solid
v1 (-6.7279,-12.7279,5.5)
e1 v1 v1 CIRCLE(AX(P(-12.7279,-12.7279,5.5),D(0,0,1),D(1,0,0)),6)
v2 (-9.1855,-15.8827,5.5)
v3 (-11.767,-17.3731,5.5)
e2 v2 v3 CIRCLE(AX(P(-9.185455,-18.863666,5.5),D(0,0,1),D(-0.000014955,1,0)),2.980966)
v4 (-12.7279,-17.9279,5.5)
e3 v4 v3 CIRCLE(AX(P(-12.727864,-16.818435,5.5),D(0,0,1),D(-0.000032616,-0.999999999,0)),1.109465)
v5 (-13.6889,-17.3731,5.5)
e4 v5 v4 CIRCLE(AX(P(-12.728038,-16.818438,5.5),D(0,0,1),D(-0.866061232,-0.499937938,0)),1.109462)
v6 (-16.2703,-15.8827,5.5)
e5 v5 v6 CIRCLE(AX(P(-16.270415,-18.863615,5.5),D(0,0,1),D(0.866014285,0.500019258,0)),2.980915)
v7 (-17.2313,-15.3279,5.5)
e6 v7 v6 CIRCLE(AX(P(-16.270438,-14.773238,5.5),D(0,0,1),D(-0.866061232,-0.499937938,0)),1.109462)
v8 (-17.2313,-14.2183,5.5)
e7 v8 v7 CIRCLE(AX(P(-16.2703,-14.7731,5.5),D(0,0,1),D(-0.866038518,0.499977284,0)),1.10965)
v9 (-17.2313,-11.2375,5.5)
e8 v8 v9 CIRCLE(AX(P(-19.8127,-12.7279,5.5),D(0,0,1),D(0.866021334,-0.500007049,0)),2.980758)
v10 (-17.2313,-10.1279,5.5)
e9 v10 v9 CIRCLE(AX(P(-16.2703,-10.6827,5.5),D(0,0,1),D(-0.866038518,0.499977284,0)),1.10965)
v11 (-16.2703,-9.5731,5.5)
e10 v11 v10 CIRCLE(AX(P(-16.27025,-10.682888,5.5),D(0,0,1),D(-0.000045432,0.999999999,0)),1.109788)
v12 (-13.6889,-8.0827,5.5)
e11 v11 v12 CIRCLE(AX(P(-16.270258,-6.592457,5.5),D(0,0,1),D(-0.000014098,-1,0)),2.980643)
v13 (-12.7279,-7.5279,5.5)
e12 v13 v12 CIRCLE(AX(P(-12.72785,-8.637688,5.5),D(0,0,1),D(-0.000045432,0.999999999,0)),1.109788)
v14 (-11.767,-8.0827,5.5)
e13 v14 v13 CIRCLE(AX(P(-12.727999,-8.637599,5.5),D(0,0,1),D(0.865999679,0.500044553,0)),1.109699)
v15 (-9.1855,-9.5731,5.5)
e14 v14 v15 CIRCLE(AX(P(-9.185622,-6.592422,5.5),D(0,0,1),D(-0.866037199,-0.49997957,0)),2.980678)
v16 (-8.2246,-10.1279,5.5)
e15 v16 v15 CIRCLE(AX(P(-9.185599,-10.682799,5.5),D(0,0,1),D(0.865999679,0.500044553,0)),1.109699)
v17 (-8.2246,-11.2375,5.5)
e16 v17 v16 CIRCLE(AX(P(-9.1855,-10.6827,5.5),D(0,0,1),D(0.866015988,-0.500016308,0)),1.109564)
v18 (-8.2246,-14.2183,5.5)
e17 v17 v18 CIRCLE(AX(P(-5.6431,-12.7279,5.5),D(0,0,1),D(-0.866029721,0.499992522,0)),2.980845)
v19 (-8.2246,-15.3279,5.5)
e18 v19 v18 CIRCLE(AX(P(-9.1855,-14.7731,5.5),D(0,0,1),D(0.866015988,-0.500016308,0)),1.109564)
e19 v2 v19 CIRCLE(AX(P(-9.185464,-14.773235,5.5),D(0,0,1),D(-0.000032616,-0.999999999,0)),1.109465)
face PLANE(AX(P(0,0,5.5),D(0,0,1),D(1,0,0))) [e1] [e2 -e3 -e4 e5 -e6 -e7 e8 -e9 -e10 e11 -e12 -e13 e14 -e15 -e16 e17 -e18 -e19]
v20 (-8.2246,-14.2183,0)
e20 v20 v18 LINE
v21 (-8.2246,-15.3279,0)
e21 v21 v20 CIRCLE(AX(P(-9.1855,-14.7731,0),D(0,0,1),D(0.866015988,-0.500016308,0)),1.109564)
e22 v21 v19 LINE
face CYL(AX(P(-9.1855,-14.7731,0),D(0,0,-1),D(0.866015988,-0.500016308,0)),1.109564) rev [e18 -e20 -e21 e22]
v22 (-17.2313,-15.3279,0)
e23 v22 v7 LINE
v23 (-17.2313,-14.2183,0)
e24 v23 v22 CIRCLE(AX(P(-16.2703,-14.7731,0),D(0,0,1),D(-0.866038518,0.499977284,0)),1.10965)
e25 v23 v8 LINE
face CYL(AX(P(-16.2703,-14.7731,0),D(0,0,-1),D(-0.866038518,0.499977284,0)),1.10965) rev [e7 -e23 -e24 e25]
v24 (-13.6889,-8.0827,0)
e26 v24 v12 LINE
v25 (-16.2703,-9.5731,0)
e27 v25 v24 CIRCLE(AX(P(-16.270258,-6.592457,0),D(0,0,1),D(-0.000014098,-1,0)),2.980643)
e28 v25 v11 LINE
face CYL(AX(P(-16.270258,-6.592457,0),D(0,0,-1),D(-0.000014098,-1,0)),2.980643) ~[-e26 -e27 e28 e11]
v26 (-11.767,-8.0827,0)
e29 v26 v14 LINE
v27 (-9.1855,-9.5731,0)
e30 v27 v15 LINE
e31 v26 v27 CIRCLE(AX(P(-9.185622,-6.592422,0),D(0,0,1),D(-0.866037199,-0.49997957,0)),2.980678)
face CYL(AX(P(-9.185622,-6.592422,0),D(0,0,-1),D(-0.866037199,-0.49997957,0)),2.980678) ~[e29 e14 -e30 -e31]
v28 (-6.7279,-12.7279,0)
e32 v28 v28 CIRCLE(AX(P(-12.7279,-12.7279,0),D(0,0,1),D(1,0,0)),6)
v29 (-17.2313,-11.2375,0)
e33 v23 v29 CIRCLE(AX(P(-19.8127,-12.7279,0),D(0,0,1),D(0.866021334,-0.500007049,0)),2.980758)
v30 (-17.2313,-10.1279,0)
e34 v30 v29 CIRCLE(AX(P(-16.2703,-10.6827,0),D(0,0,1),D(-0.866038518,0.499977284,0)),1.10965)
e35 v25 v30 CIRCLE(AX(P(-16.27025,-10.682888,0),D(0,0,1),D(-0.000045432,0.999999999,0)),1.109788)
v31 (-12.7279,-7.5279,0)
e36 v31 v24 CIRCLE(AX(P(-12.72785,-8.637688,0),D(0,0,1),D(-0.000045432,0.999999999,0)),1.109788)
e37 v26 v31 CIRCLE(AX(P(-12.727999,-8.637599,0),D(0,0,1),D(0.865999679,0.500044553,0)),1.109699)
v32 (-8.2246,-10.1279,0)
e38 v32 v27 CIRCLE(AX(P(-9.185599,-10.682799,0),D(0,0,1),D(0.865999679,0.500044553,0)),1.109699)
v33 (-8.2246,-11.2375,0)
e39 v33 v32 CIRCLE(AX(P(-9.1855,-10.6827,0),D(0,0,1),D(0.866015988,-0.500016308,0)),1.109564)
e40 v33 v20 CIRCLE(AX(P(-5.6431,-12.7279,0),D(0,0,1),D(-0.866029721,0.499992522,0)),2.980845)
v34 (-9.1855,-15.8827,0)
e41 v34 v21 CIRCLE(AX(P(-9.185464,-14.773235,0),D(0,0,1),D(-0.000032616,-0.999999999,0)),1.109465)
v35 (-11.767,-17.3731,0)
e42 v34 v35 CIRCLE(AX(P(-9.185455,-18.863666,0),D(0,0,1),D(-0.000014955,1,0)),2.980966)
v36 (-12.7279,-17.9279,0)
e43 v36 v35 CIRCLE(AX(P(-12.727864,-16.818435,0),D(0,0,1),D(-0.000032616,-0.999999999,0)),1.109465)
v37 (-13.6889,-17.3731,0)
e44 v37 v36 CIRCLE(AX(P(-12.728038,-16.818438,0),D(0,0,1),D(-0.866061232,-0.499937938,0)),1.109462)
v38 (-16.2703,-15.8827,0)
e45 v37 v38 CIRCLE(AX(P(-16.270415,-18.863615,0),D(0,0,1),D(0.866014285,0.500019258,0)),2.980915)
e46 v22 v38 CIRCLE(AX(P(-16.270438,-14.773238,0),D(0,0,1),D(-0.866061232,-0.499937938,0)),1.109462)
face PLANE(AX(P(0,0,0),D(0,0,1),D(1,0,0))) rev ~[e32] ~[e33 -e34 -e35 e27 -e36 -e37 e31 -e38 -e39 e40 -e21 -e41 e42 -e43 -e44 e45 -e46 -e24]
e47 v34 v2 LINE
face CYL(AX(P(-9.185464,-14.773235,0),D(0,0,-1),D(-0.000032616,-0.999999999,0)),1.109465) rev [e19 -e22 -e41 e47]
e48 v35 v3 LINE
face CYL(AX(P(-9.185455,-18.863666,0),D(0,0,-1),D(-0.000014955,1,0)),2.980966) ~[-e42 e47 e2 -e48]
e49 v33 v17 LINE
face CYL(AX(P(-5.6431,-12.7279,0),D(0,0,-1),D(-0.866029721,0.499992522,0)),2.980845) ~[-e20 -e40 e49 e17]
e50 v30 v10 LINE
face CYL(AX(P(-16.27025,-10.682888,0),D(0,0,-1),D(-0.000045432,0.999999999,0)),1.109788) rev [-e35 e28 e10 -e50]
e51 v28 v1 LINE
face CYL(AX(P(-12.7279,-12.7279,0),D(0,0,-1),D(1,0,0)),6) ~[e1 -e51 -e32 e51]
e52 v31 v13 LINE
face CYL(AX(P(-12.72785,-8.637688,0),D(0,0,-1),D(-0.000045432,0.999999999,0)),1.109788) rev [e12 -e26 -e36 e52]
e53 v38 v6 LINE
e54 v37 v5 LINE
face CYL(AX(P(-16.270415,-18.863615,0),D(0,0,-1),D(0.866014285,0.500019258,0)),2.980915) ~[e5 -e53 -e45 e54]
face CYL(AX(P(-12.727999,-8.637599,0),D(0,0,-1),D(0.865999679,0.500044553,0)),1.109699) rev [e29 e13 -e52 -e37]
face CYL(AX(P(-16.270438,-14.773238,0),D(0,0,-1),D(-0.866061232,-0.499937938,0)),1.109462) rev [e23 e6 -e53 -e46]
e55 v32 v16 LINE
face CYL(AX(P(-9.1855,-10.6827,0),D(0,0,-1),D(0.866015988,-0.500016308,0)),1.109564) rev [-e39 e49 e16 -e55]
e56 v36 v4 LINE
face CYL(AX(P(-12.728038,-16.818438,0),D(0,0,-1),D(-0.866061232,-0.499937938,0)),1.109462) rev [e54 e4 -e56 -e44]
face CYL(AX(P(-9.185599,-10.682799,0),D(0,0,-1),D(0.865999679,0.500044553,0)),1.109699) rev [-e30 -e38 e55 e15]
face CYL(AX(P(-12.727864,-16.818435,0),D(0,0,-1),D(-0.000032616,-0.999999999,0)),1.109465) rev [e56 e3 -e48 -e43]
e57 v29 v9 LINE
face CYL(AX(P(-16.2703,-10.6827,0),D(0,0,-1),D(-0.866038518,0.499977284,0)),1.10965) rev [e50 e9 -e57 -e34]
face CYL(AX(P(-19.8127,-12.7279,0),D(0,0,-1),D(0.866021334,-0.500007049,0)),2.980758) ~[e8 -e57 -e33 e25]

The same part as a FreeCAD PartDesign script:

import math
import FreeCAD as App
import Part
import Sketcher

V = App.Vector

doc = App.newDocument("Part")
body = doc.addObject("PartDesign::Body", "Body")

sketch1 = body.newObject("Sketcher::SketchObject", "Sketch")
sketch1.AttachmentSupport = (doc.getObject("XY_Plane"), [""])
sketch1.MapMode = "FlatFace"
sketch1.addGeometry(Part.Circle(V(-12.7, -12.7, 0), V(0, 0, 1), 6), False)
sketch1.addGeometry(Part.ArcOfCircle(Part.Circle(V(-12.7, -8.6, 0), V(0, 0, 1), 1.1), math.radians(30), math.radians(90)), False)
sketch1.addGeometry(Part.ArcOfCircle(Part.Circle(V(-9.2, -6.6, 0), V(0, 0, 1), 3), math.radians(-150), math.radians(-90)), False)
sketch1.addGeometry(Part.ArcOfCircle(Part.Circle(V(-9.2, -10.7, 0), V(0, 0, 1), 1.1), math.radians(30), math.radians(90)), False)
sketch1.addGeometry(Part.ArcOfCircle(Part.Circle(V(-9.2, -10.7, 0), V(0, 0, 1), 1.1), math.radians(-30), math.radians(30)), False)
sketch1.addGeometry(Part.ArcOfCircle(Part.Circle(V(-5.6, -12.7, 0), V(0, 0, 1), 3), math.radians(150), math.radians(210)), False)
sketch1.addGeometry(Part.ArcOfCircle(Part.Circle(V(-9.2, -14.8, 0), V(0, 0, 1), 1.1), math.radians(-30), math.radians(30)), False)
sketch1.addGeometry(Part.ArcOfCircle(Part.Circle(V(-9.2, -14.8, 0), V(0, 0, 1), 1.1), math.radians(-90), math.radians(-30)), False)
sketch1.addGeometry(Part.ArcOfCircle(Part.Circle(V(-9.2, -18.9, 0), V(0, 0, 1), 3), math.radians(90), math.radians(150)), False)
sketch1.addGeometry(Part.ArcOfCircle(Part.Circle(V(-12.7, -16.8, 0), V(0, 0, 1), 1.1), math.radians(-90), math.radians(-30)), False)
sketch1.addGeometry(Part.ArcOfCircle(Part.Circle(V(-12.7, -16.8, 0), V(0, 0, 1), 1.1), math.radians(-150), math.radians(-90)), False)
sketch1.addGeometry(Part.ArcOfCircle(Part.Circle(V(-16.3, -18.9, 0), V(0, 0, 1), 3), math.radians(30), math.radians(90)), False)
sketch1.addGeometry(Part.ArcOfCircle(Part.Circle(V(-16.3, -14.8, 0), V(0, 0, 1), 1.1), math.radians(-150), math.radians(-90)), False)
sketch1.addGeometry(Part.ArcOfCircle(Part.Circle(V(-16.3, -14.8, 0), V(0, 0, 1), 1.1), math.radians(150), math.radians(210)), False)
sketch1.addGeometry(Part.ArcOfCircle(Part.Circle(V(-19.8, -12.7, 0), V(0, 0, 1), 3), math.radians(-30), math.radians(30)), False)
sketch1.addGeometry(Part.ArcOfCircle(Part.Circle(V(-16.3, -10.7, 0), V(0, 0, 1), 1.1), math.radians(150), math.radians(210)), False)
sketch1.addGeometry(Part.ArcOfCircle(Part.Circle(V(-16.3, -10.7, 0), V(0, 0, 1), 1.1), math.radians(90), math.radians(150)), False)
sketch1.addGeometry(Part.ArcOfCircle(Part.Circle(V(-16.3, -6.6, 0), V(0, 0, 1), 3), math.radians(-90), math.radians(-30)), False)
sketch1.addGeometry(Part.ArcOfCircle(Part.Circle(V(-12.7, -8.6, 0), V(0, 0, 1), 1.1), math.radians(90), math.radians(150)), False)
sketch1.addConstraint(Sketcher.Constraint("Tangent", 1, 1, 2, 1))
sketch1.addConstraint(Sketcher.Constraint("Tangent", 2, 2, 3, 2))
sketch1.addConstraint(Sketcher.Constraint("Tangent", 3, 1, 4, 2))
sketch1.addConstraint(Sketcher.Constraint("Tangent", 4, 1, 5, 1))
sketch1.addConstraint(Sketcher.Constraint("Tangent", 5, 2, 6, 2))
sketch1.addConstraint(Sketcher.Constraint("Tangent", 6, 1, 7, 2))
sketch1.addConstraint(Sketcher.Constraint("Tangent", 7, 1, 8, 1))
sketch1.addConstraint(Sketcher.Constraint("Tangent", 8, 2, 9, 2))
sketch1.addConstraint(Sketcher.Constraint("Tangent", 9, 1, 10, 2))
sketch1.addConstraint(Sketcher.Constraint("Tangent", 10, 1, 11, 1))
sketch1.addConstraint(Sketcher.Constraint("Tangent", 11, 2, 12, 2))
sketch1.addConstraint(Sketcher.Constraint("Tangent", 12, 1, 13, 2))
sketch1.addConstraint(Sketcher.Constraint("Tangent", 13, 1, 14, 1))
sketch1.addConstraint(Sketcher.Constraint("Tangent", 14, 2, 15, 2))
sketch1.addConstraint(Sketcher.Constraint("Tangent", 15, 1, 16, 2))
sketch1.addConstraint(Sketcher.Constraint("Tangent", 16, 1, 17, 1))
sketch1.addConstraint(Sketcher.Constraint("Tangent", 17, 2, 18, 2))
sketch1.addConstraint(Sketcher.Constraint("Tangent", 18, 1, 1, 2))
sketch1.addConstraint(Sketcher.Constraint("Equal", 1, 3))
sketch1.addConstraint(Sketcher.Constraint("Equal", 3, 4))
sketch1.addConstraint(Sketcher.Constraint("Equal", 2, 5))
sketch1.addConstraint(Sketcher.Constraint("Equal", 4, 6))
sketch1.addConstraint(Sketcher.Constraint("Equal", 6, 7))
sketch1.addConstraint(Sketcher.Constraint("Equal", 5, 8))
sketch1.addConstraint(Sketcher.Constraint("Equal", 7, 9))
sketch1.addConstraint(Sketcher.Constraint("Equal", 9, 10))
sketch1.addConstraint(Sketcher.Constraint("Equal", 8, 11))
sketch1.addConstraint(Sketcher.Constraint("Equal", 10, 12))
sketch1.addConstraint(Sketcher.Constraint("Equal", 12, 13))
sketch1.addConstraint(Sketcher.Constraint("Equal", 11, 14))
sketch1.addConstraint(Sketcher.Constraint("Equal", 13, 15))
sketch1.addConstraint(Sketcher.Constraint("Equal", 15, 16))
sketch1.addConstraint(Sketcher.Constraint("Equal", 14, 17))
sketch1.addConstraint(Sketcher.Constraint("Equal", 16, 18))
sketch1.addConstraint(Sketcher.Constraint("Horizontal", 0, 3, 5, 3))
sketch1.addConstraint(Sketcher.Constraint("Horizontal", 8, 3, 11, 3))
sketch1.addConstraint(Sketcher.Constraint("Horizontal", 5, 3, 14, 3))
sketch1.addConstraint(Sketcher.Constraint("Horizontal", 4, 3, 15, 3))
sketch1.addConstraint(Sketcher.Constraint("Horizontal", 6, 1, 12, 1))
sketch1.addConstraint(Sketcher.Constraint("Horizontal", 3, 1, 15, 1))
sketch1.addConstraint(Sketcher.Constraint("Vertical", 0, 3, 1, 3))
sketch1.addConstraint(Sketcher.Constraint("Vertical", 2, 3, 3, 3))
sketch1.addConstraint(Sketcher.Constraint("Vertical", 4, 3, 6, 3))
sketch1.addConstraint(Sketcher.Constraint("Vertical", 7, 3, 8, 3))
sketch1.addConstraint(Sketcher.Constraint("Vertical", 1, 3, 9, 3))
sketch1.addConstraint(Sketcher.Constraint("Vertical", 11, 3, 12, 3))
sketch1.addConstraint(Sketcher.Constraint("Vertical", 3, 1, 4, 1))
sketch1.addConstraint(Sketcher.Constraint("Vertical", 5, 2, 6, 1))
sketch1.addConstraint(Sketcher.Constraint("Vertical", 18, 3, 9, 1))
sketch1.addConstraint(Sketcher.Constraint("Vertical", 9, 1, 18, 1))
sketch1.addConstraint(Sketcher.Constraint("Diameter", 0, 12.0))
sketch1.addConstraint(Sketcher.Constraint("Radius", 1, 1.1096))
sketch1.addConstraint(Sketcher.Constraint("Radius", 2, 2.9808))
sketch1.addConstraint(Sketcher.Constraint("DistanceY", 3, 3, 1, 1, 2.6))
sketch1.addConstraint(Sketcher.Constraint("DistanceY", 5, 3, 3, 1, 2.6))
sketch1.addConstraint(Sketcher.Constraint("DistanceX", 0, 3, -1, 1, 12.728))
sketch1.addConstraint(Sketcher.Constraint("DistanceY", 0, 3, -1, 1, 12.728))
pad1 = body.newObject("PartDesign::Pad", "Pad")
pad1.Profile = sketch1
pad1.Length = 5.5

doc.recompute()
